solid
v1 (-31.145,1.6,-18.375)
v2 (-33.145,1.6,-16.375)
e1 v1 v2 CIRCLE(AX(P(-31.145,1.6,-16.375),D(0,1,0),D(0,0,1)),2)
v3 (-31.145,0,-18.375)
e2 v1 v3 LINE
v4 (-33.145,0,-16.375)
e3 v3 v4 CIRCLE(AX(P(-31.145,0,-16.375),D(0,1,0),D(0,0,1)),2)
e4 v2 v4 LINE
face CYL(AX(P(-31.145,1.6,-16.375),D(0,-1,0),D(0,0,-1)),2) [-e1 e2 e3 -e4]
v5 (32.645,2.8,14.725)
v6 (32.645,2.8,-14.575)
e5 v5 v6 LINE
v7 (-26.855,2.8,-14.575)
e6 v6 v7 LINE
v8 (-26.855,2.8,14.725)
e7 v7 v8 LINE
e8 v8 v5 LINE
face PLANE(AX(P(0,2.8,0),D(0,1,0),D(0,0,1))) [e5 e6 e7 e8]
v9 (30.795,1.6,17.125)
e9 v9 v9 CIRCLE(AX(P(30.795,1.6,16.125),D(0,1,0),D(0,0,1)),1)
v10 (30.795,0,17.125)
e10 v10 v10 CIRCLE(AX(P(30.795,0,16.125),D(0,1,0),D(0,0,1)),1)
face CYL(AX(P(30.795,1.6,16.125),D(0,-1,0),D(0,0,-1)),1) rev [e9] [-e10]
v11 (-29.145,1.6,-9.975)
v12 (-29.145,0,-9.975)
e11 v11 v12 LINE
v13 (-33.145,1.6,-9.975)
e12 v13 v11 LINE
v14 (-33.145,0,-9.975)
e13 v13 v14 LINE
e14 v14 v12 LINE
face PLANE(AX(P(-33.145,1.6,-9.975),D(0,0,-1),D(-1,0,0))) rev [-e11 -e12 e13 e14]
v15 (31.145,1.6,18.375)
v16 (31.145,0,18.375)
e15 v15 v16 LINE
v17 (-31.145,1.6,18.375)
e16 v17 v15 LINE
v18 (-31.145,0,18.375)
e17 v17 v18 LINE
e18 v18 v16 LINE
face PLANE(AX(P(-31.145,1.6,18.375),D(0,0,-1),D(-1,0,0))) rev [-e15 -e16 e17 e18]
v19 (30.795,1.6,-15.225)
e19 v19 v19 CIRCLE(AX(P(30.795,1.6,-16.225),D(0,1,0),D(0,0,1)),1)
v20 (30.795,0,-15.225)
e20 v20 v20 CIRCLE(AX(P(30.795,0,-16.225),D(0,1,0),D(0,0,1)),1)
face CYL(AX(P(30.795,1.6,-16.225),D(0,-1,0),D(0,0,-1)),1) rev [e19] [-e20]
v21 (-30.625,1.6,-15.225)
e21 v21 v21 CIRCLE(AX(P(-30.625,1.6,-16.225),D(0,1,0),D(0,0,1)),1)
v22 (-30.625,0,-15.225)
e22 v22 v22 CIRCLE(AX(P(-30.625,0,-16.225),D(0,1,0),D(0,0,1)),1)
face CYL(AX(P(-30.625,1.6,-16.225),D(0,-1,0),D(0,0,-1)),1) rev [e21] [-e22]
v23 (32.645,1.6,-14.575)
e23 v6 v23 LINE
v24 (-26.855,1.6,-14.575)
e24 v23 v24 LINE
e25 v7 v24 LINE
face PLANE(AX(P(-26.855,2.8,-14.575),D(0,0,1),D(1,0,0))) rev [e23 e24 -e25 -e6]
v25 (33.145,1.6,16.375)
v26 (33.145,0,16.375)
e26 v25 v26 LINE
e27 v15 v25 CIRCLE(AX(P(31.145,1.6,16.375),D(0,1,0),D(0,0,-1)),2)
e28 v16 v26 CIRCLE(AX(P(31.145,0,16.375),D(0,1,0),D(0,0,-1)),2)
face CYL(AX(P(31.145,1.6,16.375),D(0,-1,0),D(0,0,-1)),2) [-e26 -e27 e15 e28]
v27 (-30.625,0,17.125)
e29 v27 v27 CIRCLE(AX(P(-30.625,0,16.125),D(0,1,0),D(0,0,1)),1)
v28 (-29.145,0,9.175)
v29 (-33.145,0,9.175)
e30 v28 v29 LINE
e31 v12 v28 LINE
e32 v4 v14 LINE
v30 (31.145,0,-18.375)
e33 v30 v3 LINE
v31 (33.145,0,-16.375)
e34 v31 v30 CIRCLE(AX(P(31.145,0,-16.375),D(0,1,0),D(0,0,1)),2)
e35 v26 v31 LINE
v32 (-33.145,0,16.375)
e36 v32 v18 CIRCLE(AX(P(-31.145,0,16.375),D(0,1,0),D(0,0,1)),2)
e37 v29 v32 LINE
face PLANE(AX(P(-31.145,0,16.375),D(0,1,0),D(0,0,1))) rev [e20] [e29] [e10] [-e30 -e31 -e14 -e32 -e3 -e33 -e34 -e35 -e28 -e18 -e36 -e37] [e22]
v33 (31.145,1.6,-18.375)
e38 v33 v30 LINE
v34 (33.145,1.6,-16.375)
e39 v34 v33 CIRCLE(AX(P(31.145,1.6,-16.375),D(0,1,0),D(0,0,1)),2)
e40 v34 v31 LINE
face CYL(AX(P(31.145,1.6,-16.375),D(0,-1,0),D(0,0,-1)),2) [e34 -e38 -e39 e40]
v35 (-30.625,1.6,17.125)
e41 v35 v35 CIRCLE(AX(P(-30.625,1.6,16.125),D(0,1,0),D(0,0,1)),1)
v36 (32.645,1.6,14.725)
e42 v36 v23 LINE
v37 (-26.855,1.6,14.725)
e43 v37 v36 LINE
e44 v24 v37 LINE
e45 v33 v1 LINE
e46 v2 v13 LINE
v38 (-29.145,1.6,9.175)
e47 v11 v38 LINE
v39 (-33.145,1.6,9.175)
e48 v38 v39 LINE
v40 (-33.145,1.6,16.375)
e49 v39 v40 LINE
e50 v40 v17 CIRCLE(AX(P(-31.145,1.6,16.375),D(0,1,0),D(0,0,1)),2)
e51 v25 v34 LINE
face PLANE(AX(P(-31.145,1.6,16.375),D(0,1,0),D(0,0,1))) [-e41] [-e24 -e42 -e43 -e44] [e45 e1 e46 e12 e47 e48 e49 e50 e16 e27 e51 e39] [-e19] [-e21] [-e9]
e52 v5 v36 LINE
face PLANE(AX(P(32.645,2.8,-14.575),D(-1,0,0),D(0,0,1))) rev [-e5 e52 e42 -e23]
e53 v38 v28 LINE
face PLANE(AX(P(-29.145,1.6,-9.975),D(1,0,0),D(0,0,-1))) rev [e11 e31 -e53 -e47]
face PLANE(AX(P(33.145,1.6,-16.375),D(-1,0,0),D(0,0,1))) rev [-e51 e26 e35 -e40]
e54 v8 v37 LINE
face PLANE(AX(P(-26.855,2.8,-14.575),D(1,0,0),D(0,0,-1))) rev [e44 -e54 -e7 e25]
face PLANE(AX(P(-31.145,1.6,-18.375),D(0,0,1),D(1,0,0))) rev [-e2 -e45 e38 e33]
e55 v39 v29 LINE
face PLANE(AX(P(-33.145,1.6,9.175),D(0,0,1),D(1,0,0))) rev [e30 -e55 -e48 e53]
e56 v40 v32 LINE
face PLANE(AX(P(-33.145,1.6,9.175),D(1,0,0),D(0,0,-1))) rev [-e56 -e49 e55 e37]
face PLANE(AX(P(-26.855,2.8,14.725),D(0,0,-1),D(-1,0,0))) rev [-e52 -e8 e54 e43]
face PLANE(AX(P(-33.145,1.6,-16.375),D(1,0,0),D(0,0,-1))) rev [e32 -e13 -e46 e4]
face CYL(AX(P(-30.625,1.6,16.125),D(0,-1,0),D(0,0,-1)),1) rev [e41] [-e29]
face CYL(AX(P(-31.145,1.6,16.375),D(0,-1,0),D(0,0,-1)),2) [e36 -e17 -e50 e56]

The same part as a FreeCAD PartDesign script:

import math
import FreeCAD as App
import Part
import Sketcher

V = App.Vector

doc = App.newDocument("Part")
body = doc.addObject("PartDesign::Body", "Body")

sketch1 = body.newObject("Sketcher::SketchObject", "Sketch")
sketch1.AttachmentSupport = (doc.getObject("XZ_Plane"), [""])
sketch1.MapMode = "FlatFace"
sketch1.addGeometry([
    Part.LineSegment(V(-33.1, 9.2, 0), V(-33.1, 16.4, 0)),
    Part.ArcOfCircle(Part.Circle(V(-31.1, 16.4, 0), V(0, 0, 1), 2), math.radians(90), math.radians(180)),
    Part.LineSegment(V(-31.1, 18.4, 0), V(31.1, 18.4, 0)),
    Part.ArcOfCircle(Part.Circle(V(31.1, 16.4, 0), V(0, 0, 1), 2), math.radians(0), math.radians(90)),
    Part.LineSegment(V(33.1, 16.4, 0), V(33.1, -16.4, 0)),
    Part.ArcOfCircle(Part.Circle(V(31.1, -16.4, 0), V(0, 0, 1), 2), math.radians(-90), math.radians(0)),
    Part.LineSegment(V(31.1, -18.4, 0), V(-31.1, -18.4, 0)),
    Part.ArcOfCircle(Part.Circle(V(-31.1, -16.4, 0), V(0, 0, 1), 2), math.radians(-180), math.radians(-90)),
    Part.LineSegment(V(-33.1, -16.4, 0), V(-33.1, -10, 0)),
    Part.LineSegment(V(-33.1, -10, 0), V(-29.1, -10, 0)),
    Part.LineSegment(V(-29.1, -10, 0), V(-29.1, 9.2, 0)),
    Part.LineSegment(V(-29.1, 9.2, 0), V(-33.1, 9.2, 0)),
    Part.Circle(V(-30.6, 16.1, 0), V(0, 0, 1), 1),
    Part.Circle(V(30.8, 16.1, 0), V(0, 0, 1), 1),
    Part.Circle(V(-30.6, -16.2, 0), V(0, 0, 1), 1),
    Part.Circle(V(30.8, -16.2, 0), V(0, 0, 1), 1),
], False)
sketch1.addConstraint([
    Sketcher.Constraint("Tangent", 0, 2, 1, 2),
    Sketcher.Constraint("Tangent", 1, 1, 2, 1),
    Sketcher.Constraint("Tangent", 2, 2, 3, 2),
    Sketcher.Constraint("Tangent", 3, 1, 4, 1),
    Sketcher.Constraint("Tangent", 4, 2, 5, 2),
    Sketcher.Constraint("Tangent", 5, 1, 6, 1),
    Sketcher.Constraint("Tangent", 6, 2, 7, 2),
    Sketcher.Constraint("Tangent", 7, 1, 8, 1),
    Sketcher.Constraint("Coincident", 8, 2, 9, 1),
    Sketcher.Constraint("Coincident", 9, 2, 10, 1),
    Sketcher.Constraint("Coincident", 10, 2, 11, 1),
    Sketcher.Constraint("Coincident", 11, 2, 0, 1),
    Sketcher.Constraint("Vertical", 0),
    Sketcher.Constraint("Horizontal", 2),
    Sketcher.Constraint("Vertical", 4),
    Sketcher.Constraint("Horizontal", 6),
    Sketcher.Constraint("Vertical", 8),
    Sketcher.Constraint("Horizontal", 9),
    Sketcher.Constraint("Vertical", 10),
    Sketcher.Constraint("Horizontal", 11),
    Sketcher.Constraint("Equal", 1, 3),
    Sketcher.Constraint("Equal", 3, 5),
    Sketcher.Constraint("Equal", 5, 7),
    Sketcher.Constraint("Equal", 12, 13),
    Sketcher.Constraint("Equal", 13, 14),
    Sketcher.Constraint("Equal", 14, 15),
    Sketcher.Constraint("Symmetric", 1, 3, 5, 3, -1, 1),
    Sketcher.Constraint("Horizontal", 12, 3, 13, 3),
    Sketcher.Constraint("Horizontal", 14, 3, 15, 3),
    Sketcher.Constraint("Vertical", 1, 3, 7, 3),
    Sketcher.Constraint("Vertical", 12, 3, 14, 3),
    Sketcher.Constraint("Vertical", 13, 3, 15, 3),
    Sketcher.Constraint("Diameter", 12, 2.0),
    Sketcher.Constraint("Radius", 1, 2.0),
    Sketcher.Constraint("DistanceX", 9, 1, 9, 2, 4.0),
    Sketcher.Constraint("DistanceY", 0, 1, 0, 2, 7.2),
    Sketcher.Constraint("DistanceY", 8, 1, 8, 2, 6.4),
    Sketcher.Constraint("DistanceX", 2, 1, 2, 2, 62.29),
    Sketcher.Constraint("DistanceY", 4, 2, 4, 1, 32.75),
    Sketcher.Constraint("DistanceY", 7, 3, 12, 3, 32.5),
    Sketcher.Constraint("DistanceY", 14, 3, 1, 3, 32.6),
    Sketcher.Constraint("DistanceX", 1, 3, 12, 3, 0.52),
    Sketcher.Constraint("DistanceX", 13, 3, 3, 3, 0.35),
])
pad1 = body.newObject("PartDesign::Pad", "Pad")
pad1.Profile = sketch1
pad1.Length = 1.6
pad1.Reversed = True

sketch2 = body.newObject("Sketcher::SketchObject", "Sketch001")
sketch2.AttachmentSupport = (doc.getObject("XZ_Plane"), [""])
sketch2.MapMode = "FlatFace"
sketch2.AttachmentOffset = App.Placement(V(0, 0, -1.6), App.Rotation())
sketch2.addGeometry([
    Part.LineSegment(V(-27, -15, 0), V(-27, 15, 0)),
    Part.LineSegment(V(-27, 15, 0), V(33, 15, 0)),
    Part.LineSegment(V(33, 15, 0), V(33, -15, 0)),
    Part.LineSegment(V(33, -15, 0), V(-27, -15, 0)),
], False)
sketch2.addConstraint([
    Sketcher.Constraint("Coincident", 0, 2, 1, 1),
    Sketcher.Constraint("Coincident", 1, 2, 2, 1),
    Sketcher.Constraint("Coincident", 2, 2, 3, 1),
    Sketcher.Constraint("Coincident", 3, 2, 0, 1),
    Sketcher.Constraint("Vertical", 0),
    Sketcher.Constraint("Horizontal", 1),
    Sketcher.Constraint("Vertical", 2),
    Sketcher.Constraint("Horizontal", 3),
    Sketcher.Constraint("DistanceX", 1, 1, 1, 2, 59.5),
    Sketcher.Constraint("DistanceY", 0, 1, 0, 2, 29.3),
    Sketcher.Constraint("DistanceX", 0, 2, -1, 1, 26.855),
    Sketcher.Constraint("DistanceY", -1, 1, 0, 2, 14.725),
])
pad2 = body.newObject("PartDesign::Pad", "Pad001")
pad2.Profile = sketch2
pad2.Length = 1.2
pad2.Reversed = True

doc.recompute()
